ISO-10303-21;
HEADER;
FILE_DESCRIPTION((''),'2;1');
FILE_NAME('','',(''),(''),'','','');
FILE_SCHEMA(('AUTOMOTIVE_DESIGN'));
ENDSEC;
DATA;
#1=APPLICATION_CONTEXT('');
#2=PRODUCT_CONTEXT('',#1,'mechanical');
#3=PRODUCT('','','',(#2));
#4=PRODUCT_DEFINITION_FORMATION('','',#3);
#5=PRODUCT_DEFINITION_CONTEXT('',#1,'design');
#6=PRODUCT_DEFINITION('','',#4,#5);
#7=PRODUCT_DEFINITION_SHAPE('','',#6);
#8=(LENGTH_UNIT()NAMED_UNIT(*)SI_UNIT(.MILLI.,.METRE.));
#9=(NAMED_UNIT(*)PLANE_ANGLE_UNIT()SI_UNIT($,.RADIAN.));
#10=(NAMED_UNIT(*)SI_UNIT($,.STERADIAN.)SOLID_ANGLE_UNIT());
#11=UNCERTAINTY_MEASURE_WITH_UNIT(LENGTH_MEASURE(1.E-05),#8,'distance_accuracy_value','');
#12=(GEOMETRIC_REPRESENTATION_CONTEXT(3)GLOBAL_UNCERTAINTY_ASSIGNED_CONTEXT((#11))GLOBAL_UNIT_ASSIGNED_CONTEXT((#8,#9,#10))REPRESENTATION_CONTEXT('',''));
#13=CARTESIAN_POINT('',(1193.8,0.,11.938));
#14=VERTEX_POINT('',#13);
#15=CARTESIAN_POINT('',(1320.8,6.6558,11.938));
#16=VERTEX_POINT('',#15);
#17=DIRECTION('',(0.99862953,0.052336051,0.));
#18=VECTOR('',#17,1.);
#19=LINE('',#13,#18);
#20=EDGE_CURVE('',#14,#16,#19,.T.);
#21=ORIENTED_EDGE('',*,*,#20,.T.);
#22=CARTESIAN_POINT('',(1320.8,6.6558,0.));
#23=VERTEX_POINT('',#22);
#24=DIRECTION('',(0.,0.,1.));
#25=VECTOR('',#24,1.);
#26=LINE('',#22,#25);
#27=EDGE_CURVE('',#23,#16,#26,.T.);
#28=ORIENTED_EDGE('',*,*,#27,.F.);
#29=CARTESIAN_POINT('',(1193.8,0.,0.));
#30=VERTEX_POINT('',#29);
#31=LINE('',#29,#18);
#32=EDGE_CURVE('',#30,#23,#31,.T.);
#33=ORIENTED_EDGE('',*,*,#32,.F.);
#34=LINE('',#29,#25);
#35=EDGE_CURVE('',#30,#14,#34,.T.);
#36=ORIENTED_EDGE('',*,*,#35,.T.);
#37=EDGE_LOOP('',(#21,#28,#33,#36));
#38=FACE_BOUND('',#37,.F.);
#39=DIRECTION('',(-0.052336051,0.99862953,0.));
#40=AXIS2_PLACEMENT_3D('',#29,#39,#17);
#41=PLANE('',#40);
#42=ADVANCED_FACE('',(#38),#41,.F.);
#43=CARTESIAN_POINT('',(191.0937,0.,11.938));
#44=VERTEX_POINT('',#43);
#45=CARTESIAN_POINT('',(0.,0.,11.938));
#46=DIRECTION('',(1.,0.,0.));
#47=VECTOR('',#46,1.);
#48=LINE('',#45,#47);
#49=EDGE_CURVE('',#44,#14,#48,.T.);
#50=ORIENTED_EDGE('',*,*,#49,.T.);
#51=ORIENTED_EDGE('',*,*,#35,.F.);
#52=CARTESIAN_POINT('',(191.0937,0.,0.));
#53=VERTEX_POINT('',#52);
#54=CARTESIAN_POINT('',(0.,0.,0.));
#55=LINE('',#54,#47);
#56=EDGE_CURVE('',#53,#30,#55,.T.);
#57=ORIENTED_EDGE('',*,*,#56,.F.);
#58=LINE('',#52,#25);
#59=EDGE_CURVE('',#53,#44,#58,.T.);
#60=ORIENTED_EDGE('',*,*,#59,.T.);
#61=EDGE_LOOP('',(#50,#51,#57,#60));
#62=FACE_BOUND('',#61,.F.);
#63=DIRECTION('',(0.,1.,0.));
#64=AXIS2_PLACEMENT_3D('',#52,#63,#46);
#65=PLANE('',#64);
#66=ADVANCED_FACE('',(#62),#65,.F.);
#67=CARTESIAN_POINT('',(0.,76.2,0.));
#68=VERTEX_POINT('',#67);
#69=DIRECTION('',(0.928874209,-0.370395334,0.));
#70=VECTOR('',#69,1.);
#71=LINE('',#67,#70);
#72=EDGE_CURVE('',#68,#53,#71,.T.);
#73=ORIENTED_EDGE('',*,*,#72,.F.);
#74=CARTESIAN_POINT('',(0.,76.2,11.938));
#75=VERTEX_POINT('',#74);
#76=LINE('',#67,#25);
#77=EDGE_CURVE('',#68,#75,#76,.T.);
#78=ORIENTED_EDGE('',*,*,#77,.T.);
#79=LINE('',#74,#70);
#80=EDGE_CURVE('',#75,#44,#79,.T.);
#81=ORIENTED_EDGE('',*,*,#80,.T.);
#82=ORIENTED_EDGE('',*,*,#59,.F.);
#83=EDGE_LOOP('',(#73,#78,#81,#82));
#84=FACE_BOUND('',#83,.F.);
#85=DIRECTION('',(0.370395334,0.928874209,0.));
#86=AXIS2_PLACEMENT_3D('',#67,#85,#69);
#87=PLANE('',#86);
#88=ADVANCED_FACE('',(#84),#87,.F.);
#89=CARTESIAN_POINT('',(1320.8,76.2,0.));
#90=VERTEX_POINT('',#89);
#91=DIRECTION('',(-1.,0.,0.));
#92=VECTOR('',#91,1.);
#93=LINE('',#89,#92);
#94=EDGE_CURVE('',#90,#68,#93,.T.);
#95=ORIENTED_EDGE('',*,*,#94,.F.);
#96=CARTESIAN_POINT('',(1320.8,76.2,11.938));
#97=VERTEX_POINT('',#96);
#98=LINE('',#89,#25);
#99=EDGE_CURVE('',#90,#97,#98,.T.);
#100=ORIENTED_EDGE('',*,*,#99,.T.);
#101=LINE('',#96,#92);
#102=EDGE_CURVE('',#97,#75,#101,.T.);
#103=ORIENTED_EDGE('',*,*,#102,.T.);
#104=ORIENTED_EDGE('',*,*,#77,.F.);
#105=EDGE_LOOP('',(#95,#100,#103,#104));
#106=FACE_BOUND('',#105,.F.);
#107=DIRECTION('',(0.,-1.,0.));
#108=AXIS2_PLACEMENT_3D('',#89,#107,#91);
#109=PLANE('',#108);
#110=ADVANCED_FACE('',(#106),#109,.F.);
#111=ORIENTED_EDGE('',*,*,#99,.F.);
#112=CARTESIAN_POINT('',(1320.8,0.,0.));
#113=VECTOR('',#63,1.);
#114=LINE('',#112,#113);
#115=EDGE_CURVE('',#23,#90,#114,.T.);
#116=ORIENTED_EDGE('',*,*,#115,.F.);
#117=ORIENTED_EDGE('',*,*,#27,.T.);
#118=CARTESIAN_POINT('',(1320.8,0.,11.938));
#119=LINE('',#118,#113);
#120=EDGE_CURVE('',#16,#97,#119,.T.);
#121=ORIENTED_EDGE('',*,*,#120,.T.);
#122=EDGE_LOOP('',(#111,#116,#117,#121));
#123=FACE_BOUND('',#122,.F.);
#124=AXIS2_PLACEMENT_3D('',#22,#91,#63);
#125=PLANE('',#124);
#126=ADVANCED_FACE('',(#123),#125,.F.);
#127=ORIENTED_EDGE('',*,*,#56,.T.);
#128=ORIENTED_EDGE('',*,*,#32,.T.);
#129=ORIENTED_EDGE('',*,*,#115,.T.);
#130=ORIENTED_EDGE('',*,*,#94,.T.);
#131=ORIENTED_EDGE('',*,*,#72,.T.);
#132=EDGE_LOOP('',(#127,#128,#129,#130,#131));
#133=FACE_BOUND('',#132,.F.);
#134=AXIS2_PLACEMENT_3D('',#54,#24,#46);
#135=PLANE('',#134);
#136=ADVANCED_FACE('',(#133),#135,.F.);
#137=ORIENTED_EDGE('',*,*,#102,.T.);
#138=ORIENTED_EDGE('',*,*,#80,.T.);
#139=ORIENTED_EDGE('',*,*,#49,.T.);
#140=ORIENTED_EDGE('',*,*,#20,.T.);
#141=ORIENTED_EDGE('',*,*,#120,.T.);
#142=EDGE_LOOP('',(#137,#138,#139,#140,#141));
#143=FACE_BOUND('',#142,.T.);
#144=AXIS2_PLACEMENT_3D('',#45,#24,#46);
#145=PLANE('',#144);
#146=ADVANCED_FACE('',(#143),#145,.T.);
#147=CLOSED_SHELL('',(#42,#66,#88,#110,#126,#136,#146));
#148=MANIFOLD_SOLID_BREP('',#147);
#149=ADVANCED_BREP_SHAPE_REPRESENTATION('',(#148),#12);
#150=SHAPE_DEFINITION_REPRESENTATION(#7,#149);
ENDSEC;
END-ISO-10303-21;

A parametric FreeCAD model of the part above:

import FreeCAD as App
import Part
import Sketcher
Q = App.Units.Quantity

doc = App.newDocument("Part")
body = doc.addObject("PartDesign::Body", "Body")

# Sketch on XY plane
sketch1 = body.newObject("Sketcher::SketchObject", "Sketch")
sketch1.AttachmentSupport = (doc.getObject("XY_Plane"), [""])
sketch1.MapMode = "FlatFace"
sketch1.addGeometry(Part.LineSegment(App.Vector(0, 76.2, 0), App.Vector(191.0937, 0, 0)), False)
sketch1.addGeometry(Part.LineSegment(App.Vector(191.0937, 0, 0), App.Vector(1193.8, 0, 0)), False)
sketch1.addGeometry(Part.LineSegment(App.Vector(1193.8, 0, 0), App.Vector(1320.8, 6.6558, 0)), False)
sketch1.addGeometry(Part.LineSegment(App.Vector(1320.8, 6.6558, 0), App.Vector(1320.8, 76.2, 0)), False)
sketch1.addGeometry(Part.LineSegment(App.Vector(1320.8, 76.2, 0), App.Vector(0, 76.2, 0)), False)
sketch1.addConstraint(Sketcher.Constraint("Coincident", 0, 2, 1, 1))
sketch1.addConstraint(Sketcher.Constraint("Coincident", 1, 2, 2, 1))
sketch1.addConstraint(Sketcher.Constraint("Coincident", 2, 2, 3, 1))
sketch1.addConstraint(Sketcher.Constraint("Coincident", 3, 2, 4, 1))
sketch1.addConstraint(Sketcher.Constraint("Coincident", 4, 2, 0, 1))
sketch1.addConstraint(Sketcher.Constraint("Horizontal", 1))
sketch1.addConstraint(Sketcher.Constraint("Vertical", 3))
sketch1.addConstraint(Sketcher.Constraint("Horizontal", 4))
sketch1.addConstraint(Sketcher.Constraint("PointOnObject", 0, 2, -1))
sketch1.addConstraint(Sketcher.Constraint("PointOnObject", 4, 2, -2))
sketch1.addConstraint(Sketcher.Constraint("DistanceX", 4, 2, 4, 1, Q("52 in")))
sketch1.addConstraint(Sketcher.Constraint("DistanceY", -1, 1, 3, 2, Q("3 in")))
sketch1.addConstraint(Sketcher.Constraint("Angle", 2, Q("3 deg")))
sketch1.addConstraint(Sketcher.Constraint("DistanceX", 1, 2, 2, 2, Q("5 in")))
sketch1.addConstraint(Sketcher.Constraint("Angle", 0, Q("-21.74 deg")))
pad1 = body.newObject("PartDesign::Pad", "Pad")
pad1.Profile = sketch1
pad1.Length = Q("0.47 in")

doc.recompute()
